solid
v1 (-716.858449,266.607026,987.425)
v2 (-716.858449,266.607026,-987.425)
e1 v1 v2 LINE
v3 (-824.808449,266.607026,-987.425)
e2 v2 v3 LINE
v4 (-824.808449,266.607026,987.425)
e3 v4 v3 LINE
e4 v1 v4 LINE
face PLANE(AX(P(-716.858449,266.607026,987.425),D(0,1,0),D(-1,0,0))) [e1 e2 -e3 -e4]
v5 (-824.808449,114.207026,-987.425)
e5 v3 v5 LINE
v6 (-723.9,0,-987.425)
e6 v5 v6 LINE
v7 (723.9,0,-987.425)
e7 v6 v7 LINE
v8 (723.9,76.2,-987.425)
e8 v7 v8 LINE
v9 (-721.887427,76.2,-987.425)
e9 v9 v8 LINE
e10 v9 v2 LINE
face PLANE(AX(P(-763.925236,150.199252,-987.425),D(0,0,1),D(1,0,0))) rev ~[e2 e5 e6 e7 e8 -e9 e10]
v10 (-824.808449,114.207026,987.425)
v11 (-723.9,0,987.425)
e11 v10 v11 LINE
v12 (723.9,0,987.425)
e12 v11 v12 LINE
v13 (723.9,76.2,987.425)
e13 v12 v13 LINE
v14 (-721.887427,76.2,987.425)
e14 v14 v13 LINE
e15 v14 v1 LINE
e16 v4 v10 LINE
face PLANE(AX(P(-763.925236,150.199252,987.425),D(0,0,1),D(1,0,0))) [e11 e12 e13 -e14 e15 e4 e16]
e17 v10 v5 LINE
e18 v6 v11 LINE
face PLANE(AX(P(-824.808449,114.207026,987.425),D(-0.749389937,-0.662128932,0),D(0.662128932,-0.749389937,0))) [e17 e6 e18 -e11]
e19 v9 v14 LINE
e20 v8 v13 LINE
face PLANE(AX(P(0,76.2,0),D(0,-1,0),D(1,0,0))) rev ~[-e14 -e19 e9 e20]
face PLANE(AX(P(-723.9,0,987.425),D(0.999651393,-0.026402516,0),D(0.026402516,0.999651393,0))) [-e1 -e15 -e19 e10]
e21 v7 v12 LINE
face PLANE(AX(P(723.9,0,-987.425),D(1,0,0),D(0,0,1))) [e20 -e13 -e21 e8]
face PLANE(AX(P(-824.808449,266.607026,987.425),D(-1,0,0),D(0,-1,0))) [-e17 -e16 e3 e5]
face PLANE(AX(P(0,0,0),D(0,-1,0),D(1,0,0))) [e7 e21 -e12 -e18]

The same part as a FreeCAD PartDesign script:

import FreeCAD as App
import Part
import Sketcher

V = App.Vector
Q = App.Units.Quantity


def add_polygon(sketch, points):
    """Adds a closed chain of lines whose ends are joined by coincident constraints."""
    first, n = sketch.GeometryCount, len(points)
    for a, b in zip(points, points[1:] + points[:1]):
        sketch.addGeometry(Part.LineSegment(App.Vector(*a, 0), App.Vector(*b, 0)), False)
    for i in range(n):
        sketch.addConstraint(Sketcher.Constraint("Coincident", first + i, 2, first + (i + 1) % n, 1))

doc = App.newDocument("Part")
body = doc.addObject("PartDesign::Body", "Body")

sketch1 = body.newObject("Sketcher::SketchObject", "Sketch")
sketch1.AttachmentSupport = (doc.getObject("XZ_Plane"), [""])
sketch1.MapMode = "FlatFace"
add_polygon(sketch1, [(-723.9, 987.425), (-723.9, -987.425), (723.9, -987.425), (723.9, 987.425)])
sketch1.addConstraint(Sketcher.Constraint("Vertical", 0))
sketch1.addConstraint(Sketcher.Constraint("Horizontal", 1))
sketch1.addConstraint(Sketcher.Constraint("Vertical", 2))
sketch1.addConstraint(Sketcher.Constraint("Horizontal", 3))
sketch1.addConstraint(Sketcher.Constraint("Symmetric", 0, 2, 2, 2, -1, 1))
sketch1.addConstraint(Sketcher.Constraint("DistanceX", 1, 1, 1, 2, Q("57 in")))
sketch1.addConstraint(Sketcher.Constraint("DistanceY", 0, 2, 0, 1, Q("77.75 in")))
pad1 = body.newObject("PartDesign::Pad", "Pad")
pad1.Profile = sketch1
pad1.Length = Q("3 in")
pad1.Reversed = True

sketch2 = body.newObject("Sketcher::SketchObject", "Sketch001")
sketch2.AttachmentSupport = (doc.getObject("XY_Plane"), [""])
sketch2.MapMode = "FlatFace"
sketch2.AttachmentOffset = App.Placement(V(0, 0, 38.875 * 25.4), App.Rotation())
add_polygon(sketch2, [(-824.808449, 114.207026), (-723.9, 0), (-716.858449, 266.607026), (-824.808449, 266.607026)])
sketch2.addConstraint(Sketcher.Constraint("Horizontal", 2))
sketch2.addConstraint(Sketcher.Constraint("Vertical", 3))
sketch2.addConstraint(Sketcher.Constraint("PointOnObject", 0, 2, -1))
sketch2.addConstraint(Sketcher.Constraint("DistanceY", 3, 2, 3, 1, Q("6 in")))
sketch2.addConstraint(Sketcher.Constraint("Distance", 0, Q("6 in")))
sketch2.addConstraint(Sketcher.Constraint("Distance", 1, Q("10.5 in")))
sketch2.addConstraint(Sketcher.Constraint("DistanceX", 2, 2, 2, 1, Q("4.25 in")))
sketch2.addConstraint(Sketcher.Constraint("DistanceX", 0, 2, -1, 1, Q("28.5 in")))
pad2 = body.newObject("PartDesign::Pad", "Pad001")
pad2.Profile = sketch2
pad2.Length = Q("77.75 in")
pad2.Reversed = True

doc.recompute()
